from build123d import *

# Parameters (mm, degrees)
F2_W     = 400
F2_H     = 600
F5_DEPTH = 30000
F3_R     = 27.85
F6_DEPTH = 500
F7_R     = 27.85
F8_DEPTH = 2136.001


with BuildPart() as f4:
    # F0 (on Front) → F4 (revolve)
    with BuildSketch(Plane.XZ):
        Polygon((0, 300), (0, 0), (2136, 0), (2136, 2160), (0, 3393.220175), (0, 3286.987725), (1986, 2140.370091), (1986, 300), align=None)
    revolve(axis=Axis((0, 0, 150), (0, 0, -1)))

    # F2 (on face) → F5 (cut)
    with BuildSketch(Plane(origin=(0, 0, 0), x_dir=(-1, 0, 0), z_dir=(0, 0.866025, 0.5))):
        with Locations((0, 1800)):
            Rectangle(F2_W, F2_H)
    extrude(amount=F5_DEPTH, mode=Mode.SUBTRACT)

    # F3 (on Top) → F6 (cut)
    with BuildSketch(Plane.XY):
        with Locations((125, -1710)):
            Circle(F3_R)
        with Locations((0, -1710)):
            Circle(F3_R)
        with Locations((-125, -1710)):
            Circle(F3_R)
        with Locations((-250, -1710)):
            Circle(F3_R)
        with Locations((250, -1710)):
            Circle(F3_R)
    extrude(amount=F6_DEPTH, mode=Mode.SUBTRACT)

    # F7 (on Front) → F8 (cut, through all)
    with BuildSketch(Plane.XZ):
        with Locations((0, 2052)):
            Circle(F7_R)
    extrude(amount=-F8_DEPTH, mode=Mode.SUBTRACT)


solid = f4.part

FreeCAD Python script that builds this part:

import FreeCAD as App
import Part
import Sketcher
from FreeCAD import Vector
Q = App.Units.Quantity

doc = App.newDocument("Part")
body = doc.addObject("PartDesign::Body", "Body")

sketch1 = body.newObject("Sketcher::SketchObject", "Sketch")
sketch1.AttachmentSupport = (doc.getObject("XZ_Plane"), [""])
sketch1.MapMode = "FlatFace"
sketch1.addGeometry([
    Part.LineSegment(Vector(0, 300, 0), Vector(0, 0, 0)),
    Part.LineSegment(Vector(0, 0, 0), Vector(2136, 0, 0)),
    Part.LineSegment(Vector(2136, 0, 0), Vector(2136, 2160, 0)),
    Part.LineSegment(Vector(2136, 2160, 0), Vector(0, 3393.220175, 0)),
    Part.LineSegment(Vector(0, 3393.220175, 0), Vector(0, 3286.987725, 0)),
    Part.LineSegment(Vector(0, 3286.987725, 0), Vector(1986, 2140.370091, 0)),
    Part.LineSegment(Vector(1986, 2140.370091, 0), Vector(1986, 300, 0)),
    Part.LineSegment(Vector(1986, 300, 0), Vector(0, 300, 0)),
], False)
sketch1.addConstraint([
    Sketcher.Constraint("Coincident", 0, 2, 1, 1),
    Sketcher.Constraint("Coincident", 1, 2, 2, 1),
    Sketcher.Constraint("Coincident", 2, 2, 3, 1),
    Sketcher.Constraint("Coincident", 3, 2, 4, 1),
    Sketcher.Constraint("Coincident", 4, 2, 5, 1),
    Sketcher.Constraint("Coincident", 5, 2, 6, 1),
    Sketcher.Constraint("Coincident", 6, 2, 7, 1),
    Sketcher.Constraint("Coincident", 7, 2, 0, 1),
    Sketcher.Constraint("Vertical", 0),
    Sketcher.Constraint("Horizontal", 1),
    Sketcher.Constraint("Vertical", 2),
    Sketcher.Constraint("Vertical", 4),
    Sketcher.Constraint("Vertical", 6),
    Sketcher.Constraint("Horizontal", 7),
    Sketcher.Constraint("Coincident", 0, 2, -1, 1),
    Sketcher.Constraint("PointOnObject", 3, 2, -2),
    Sketcher.Constraint("Parallel", 3, 5),
    Sketcher.Constraint("DistanceX", 1, 1, 1, 2, Q("2136 mm")),
    Sketcher.Constraint("DistanceX", 7, 2, 7, 1, Q("1986 mm")),
    Sketcher.Constraint("DistanceY", 0, 2, 0, 1, Q("300 mm")),
    Sketcher.Constraint("DistanceY", 2, 1, 2, 2, Q("2160 mm")),
    Sketcher.Constraint("Angle", 3, Q("150 deg")),
    Sketcher.Constraint("DistanceY", 4, 2, 4, 1, Q("106.23245 mm")),
])
revolution = body.newObject("PartDesign::Revolution", "Revolution")
revolution.Profile = sketch1
revolution.ReferenceAxis = (sketch1, ["V_Axis"])
revolution.Angle = 360

sketch2 = body.newObject("Sketcher::SketchObject", "Sketch001")
sketch2.Placement = App.Placement(Vector(0, 0, 0), App.Rotation(Vector(-1, 0, 0), Vector(0, -0.500000175, 0.866025303), Vector(0, 0.866025303, 0.500000175), "ZXY"))
sketch2.addGeometry([
    Part.LineSegment(Vector(-200, 2100.000001, 0), Vector(-200, 1500.000001, 0)),
    Part.LineSegment(Vector(-200, 1500.000001, 0), Vector(200, 1500.000001, 0)),
    Part.LineSegment(Vector(200, 1500.000001, 0), Vector(200, 2100.000001, 0)),
    Part.LineSegment(Vector(200, 2100.000001, 0), Vector(-200, 2100.000001, 0)),
], False)
sketch2.addConstraint([
    Sketcher.Constraint("Coincident", 0, 2, 1, 1),
    Sketcher.Constraint("Coincident", 1, 2, 2, 1),
    Sketcher.Constraint("Coincident", 2, 2, 3, 1),
    Sketcher.Constraint("Coincident", 3, 2, 0, 1),
    Sketcher.Constraint("Vertical", 0),
    Sketcher.Constraint("Horizontal", 1),
    Sketcher.Constraint("Vertical", 2),
    Sketcher.Constraint("Horizontal", 3),
    Sketcher.Constraint("DistanceX", 1, 1, 1, 2, Q("400 mm")),
    Sketcher.Constraint("DistanceY", 0, 2, 0, 1, Q("600 mm")),
    Sketcher.Constraint("DistanceX", 0, 2, -1, 1, Q("200 mm")),
    Sketcher.Constraint("DistanceY", -1, 1, 0, 2, Q("1500.000001 mm")),
])
pocket1 = body.newObject("PartDesign::Pocket", "Pocket")
pocket1.Profile = sketch2
pocket1.Length = 30000
pocket1.Reversed = True

sketch3 = body.newObject("Sketcher::SketchObject", "Sketch002")
sketch3.AttachmentSupport = (doc.getObject("XY_Plane"), [""])
sketch3.MapMode = "FlatFace"
sketch3.addGeometry([
    Part.Circle(Vector(125, -1710, 0), Vector(0, 0, 1), 27.85),
    Part.Circle(Vector(0, -1710, 0), Vector(0, 0, 1), 27.85),
    Part.Circle(Vector(-125, -1710, 0), Vector(0, 0, 1), 27.85),
    Part.Circle(Vector(-250, -1710, 0), Vector(0, 0, 1), 27.85),
    Part.Circle(Vector(250, -1710, 0), Vector(0, 0, 1), 27.85),
], False)
sketch3.addConstraint([
    Sketcher.Constraint("Equal", 0, 1),
    Sketcher.Constraint("Equal", 1, 2),
    Sketcher.Constraint("Equal", 2, 3),
    Sketcher.Constraint("Equal", 3, 4),
    Sketcher.Constraint("Symmetric", 0, 3, 2, 3, -2),
    Sketcher.Constraint("Symmetric", 3, 3, 4, 3, -2),
    Sketcher.Constraint("PointOnObject", 1, 3, -2),
    Sketcher.Constraint("Horizontal", 0, 3, 1, 3),
    Sketcher.Constraint("Horizontal", 2, 3, 3, 3),
    Sketcher.Constraint("Diameter", 0, Q("55.7 mm")),
    Sketcher.Constraint("DistanceX", -1, 1, 0, 3, Q("125 mm")),
    Sketcher.Constraint("DistanceY", 0, 3, -1, 1, Q("1710 mm")),
    Sketcher.Constraint("DistanceX", 3, 3, -1, 1, Q("250 mm")),
])
pocket2 = body.newObject("PartDesign::Pocket", "Pocket001")
pocket2.Profile = sketch3
pocket2.Length = 500
pocket2.Reversed = True

sketch4 = body.newObject("Sketcher::SketchObject", "Sketch003")
sketch4.AttachmentSupport = (doc.getObject("XZ_Plane"), [""])
sketch4.MapMode = "FlatFace"
sketch4.addGeometry(Part.Circle(Vector(0, 2052, 0), Vector(0, 0, 1), 27.85), False)
sketch4.addConstraint([
    Sketcher.Constraint("PointOnObject", 0, 3, -2),
    Sketcher.Constraint("Diameter", 0, Q("55.7 mm")),
    Sketcher.Constraint("DistanceY", -1, 1, 0, 3, Q("2052 mm")),
])
pocket3 = body.newObject("PartDesign::Pocket", "Pocket002")
pocket3.Profile = sketch4
pocket3.Type = "ThroughAll"

doc.recompute()
